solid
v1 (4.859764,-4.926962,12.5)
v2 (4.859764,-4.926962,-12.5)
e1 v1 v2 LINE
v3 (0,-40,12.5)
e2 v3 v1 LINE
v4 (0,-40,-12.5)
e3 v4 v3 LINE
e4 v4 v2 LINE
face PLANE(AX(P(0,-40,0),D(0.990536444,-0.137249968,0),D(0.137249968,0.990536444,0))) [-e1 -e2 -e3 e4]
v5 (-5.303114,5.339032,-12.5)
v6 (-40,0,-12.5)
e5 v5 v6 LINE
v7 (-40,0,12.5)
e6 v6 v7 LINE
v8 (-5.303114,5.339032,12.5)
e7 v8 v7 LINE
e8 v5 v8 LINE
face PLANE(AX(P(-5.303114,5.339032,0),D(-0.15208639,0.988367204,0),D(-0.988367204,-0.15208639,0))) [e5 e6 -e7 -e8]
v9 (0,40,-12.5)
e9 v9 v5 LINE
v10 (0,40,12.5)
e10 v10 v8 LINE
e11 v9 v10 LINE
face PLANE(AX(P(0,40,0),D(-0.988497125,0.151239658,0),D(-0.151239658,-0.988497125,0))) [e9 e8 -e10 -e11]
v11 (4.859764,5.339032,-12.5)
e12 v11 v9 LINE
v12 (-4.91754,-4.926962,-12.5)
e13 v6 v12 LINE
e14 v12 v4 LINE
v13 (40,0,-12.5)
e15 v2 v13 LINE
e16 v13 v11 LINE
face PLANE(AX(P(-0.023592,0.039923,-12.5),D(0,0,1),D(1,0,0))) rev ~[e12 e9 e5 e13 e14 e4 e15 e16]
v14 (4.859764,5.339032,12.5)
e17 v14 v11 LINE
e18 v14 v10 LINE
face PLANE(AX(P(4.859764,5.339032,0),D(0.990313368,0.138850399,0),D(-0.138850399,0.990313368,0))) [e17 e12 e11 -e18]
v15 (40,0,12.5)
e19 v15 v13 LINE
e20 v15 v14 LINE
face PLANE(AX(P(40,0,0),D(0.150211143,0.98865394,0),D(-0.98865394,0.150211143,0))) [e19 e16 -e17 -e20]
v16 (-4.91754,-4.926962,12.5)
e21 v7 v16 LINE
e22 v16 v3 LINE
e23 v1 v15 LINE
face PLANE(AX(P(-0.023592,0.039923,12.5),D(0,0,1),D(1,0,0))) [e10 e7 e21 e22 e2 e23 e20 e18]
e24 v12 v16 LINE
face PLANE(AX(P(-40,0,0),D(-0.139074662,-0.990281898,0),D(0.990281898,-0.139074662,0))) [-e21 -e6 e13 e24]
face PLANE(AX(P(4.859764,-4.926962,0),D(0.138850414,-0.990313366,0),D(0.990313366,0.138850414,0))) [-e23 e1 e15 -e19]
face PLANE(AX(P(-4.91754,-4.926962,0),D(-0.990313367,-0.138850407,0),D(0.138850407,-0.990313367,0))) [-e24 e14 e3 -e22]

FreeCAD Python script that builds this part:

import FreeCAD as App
import Part
import Sketcher

doc = App.newDocument("Part")
body = doc.addObject("PartDesign::Body", "Body")

# Sketch on XY plane
sketch1 = body.newObject("Sketcher::SketchObject", "Sketch")
sketch1.AttachmentSupport = (doc.getObject("XY_Plane"), [""])
sketch1.MapMode = "FlatFace"
sketch1.addGeometry([
    Part.LineSegment(App.Vector(5, 5, 0), App.Vector(0, 40, 0)),  # 0
    Part.LineSegment(App.Vector(0, 40, 0), App.Vector(-5, 5, 0)),  # 1
    Part.LineSegment(App.Vector(-5, 5, 0), App.Vector(-40, 0, 0)),  # 2
    Part.LineSegment(App.Vector(-40, 0, 0), App.Vector(-5, -5, 0)),  # 3
    Part.LineSegment(App.Vector(-5, -5, 0), App.Vector(0, -40, 0)),  # 4
    Part.LineSegment(App.Vector(0, -40, 0), App.Vector(5, -5, 0)),  # 5
    Part.LineSegment(App.Vector(5, -5, 0), App.Vector(40, 0, 0)),  # 6
    Part.LineSegment(App.Vector(40, 0, 0), App.Vector(5, 5, 0)),  # 7
], False)
sketch1.addConstraint([
    Sketcher.Constraint("Coincident", 0, 2, 1, 1),
    Sketcher.Constraint("Coincident", 1, 2, 2, 1),
    Sketcher.Constraint("Coincident", 2, 2, 3, 1),
    Sketcher.Constraint("Coincident", 3, 2, 4, 1),
    Sketcher.Constraint("Coincident", 4, 2, 5, 1),
    Sketcher.Constraint("Coincident", 5, 2, 6, 1),
    Sketcher.Constraint("Coincident", 6, 2, 7, 1),
    Sketcher.Constraint("Coincident", 7, 2, 0, 1),
    Sketcher.Constraint("Symmetric", 0, 2, 4, 2, -1, 1),
    Sketcher.Constraint("Symmetric", 2, 2, 6, 2, -1, 1),
    Sketcher.Constraint("PointOnObject", 0, 2, -2),
    Sketcher.Constraint("PointOnObject", 2, 2, -1),
    Sketcher.Constraint("Parallel", 0, 4),
    Sketcher.Constraint("Perpendicular", 4, 6),
    Sketcher.Constraint("Horizontal", 3, 2, 5, 2),
    Sketcher.Constraint("Horizontal", 1, 2, 7, 2),
    Sketcher.Constraint("Vertical", 5, 2, 7, 2),
    Sketcher.Constraint("Distance", 0, 35.0),
    Sketcher.Constraint("DistanceY", -1, 1, 0, 2, 40.0),
    Sketcher.Constraint("DistanceX", 2, 2, -1, 1, 40.0),
    Sketcher.Constraint("Distance", 4, 35.416101),
    Sketcher.Constraint("Distance", 1, 35.064308),
])
pad1 = body.newObject("PartDesign::Pad", "Pad")
pad1.Profile = sketch1
pad1.Length = 25
pad1.Midplane = True

doc.recompute()
